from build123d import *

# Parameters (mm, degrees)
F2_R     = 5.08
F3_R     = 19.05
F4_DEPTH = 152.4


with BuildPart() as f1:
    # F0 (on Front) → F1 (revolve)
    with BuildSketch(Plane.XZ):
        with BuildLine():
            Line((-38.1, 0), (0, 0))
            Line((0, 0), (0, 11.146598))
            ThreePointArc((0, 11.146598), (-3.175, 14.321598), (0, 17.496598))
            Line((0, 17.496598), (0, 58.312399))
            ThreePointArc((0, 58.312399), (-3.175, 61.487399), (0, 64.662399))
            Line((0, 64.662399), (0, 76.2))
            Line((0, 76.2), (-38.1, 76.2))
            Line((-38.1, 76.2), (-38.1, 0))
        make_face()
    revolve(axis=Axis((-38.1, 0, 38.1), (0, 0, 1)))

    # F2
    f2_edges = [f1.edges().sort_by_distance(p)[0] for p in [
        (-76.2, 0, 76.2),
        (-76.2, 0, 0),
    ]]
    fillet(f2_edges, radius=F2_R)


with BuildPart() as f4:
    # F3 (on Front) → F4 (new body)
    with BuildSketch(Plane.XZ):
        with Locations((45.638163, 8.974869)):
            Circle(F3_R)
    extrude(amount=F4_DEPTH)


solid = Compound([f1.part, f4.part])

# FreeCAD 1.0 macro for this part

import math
import FreeCAD as App
import Part
import Sketcher
from FreeCAD import Vector
Q = App.Units.Quantity


def edges_at(feature, points):
    """Names of the edges that pass closest to the given points."""
    edges = feature.Shape.Edges
    near = lambda p: min(range(len(edges)), key=lambda i: edges[i].distToShape(Part.Vertex(*p))[0])
    return sorted({f"Edge{near(p) + 1}" for p in points})

doc = App.newDocument("Part")
body = doc.addObject("PartDesign::Body", "Body")

# Sketch on XZ plane
sketch1 = body.newObject("Sketcher::SketchObject", "Sketch")
sketch1.AttachmentSupport = (doc.getObject("XZ_Plane"), [""])
sketch1.MapMode = "FlatFace"
sketch1.addGeometry([
    Part.LineSegment(Vector(-38.1, 0, 0), Vector(0, 0, 0)),  # 0
    Part.LineSegment(Vector(0, 0, 0), Vector(0, 11.1, 0)),  # 1
    Part.ArcOfCircle(Part.Circle(Vector(0, 14.3, 0), Vector(0, 0, 1), 3.2), math.radians(90), math.radians(270)),  # 2
    Part.LineSegment(Vector(0, 17.5, 0), Vector(0, 58.3, 0)),  # 3
    Part.ArcOfCircle(Part.Circle(Vector(0, 61.5, 0), Vector(0, 0, 1), 3.2), math.radians(90), math.radians(270)),  # 4
    Part.LineSegment(Vector(0, 64.7, 0), Vector(0, 76.2, 0)),  # 5
    Part.LineSegment(Vector(0, 76.2, 0), Vector(-38.1, 76.2, 0)),  # 6
    Part.LineSegment(Vector(-38.1, 76.2, 0), Vector(-38.1, 0, 0)),  # 7
], False)
sketch1.addGeometry(Part.LineSegment(Vector(-38.1, 0, 0), Vector(-38.1, 76.2, 0)), True)  # axis
sketch1.addConstraint([
    Sketcher.Constraint("Coincident", 0, 2, 1, 1),
    Sketcher.Constraint("Coincident", 1, 2, 2, 2),
    Sketcher.Constraint("Coincident", 2, 1, 3, 1),
    Sketcher.Constraint("Coincident", 3, 2, 4, 2),
    Sketcher.Constraint("Coincident", 4, 1, 5, 1),
    Sketcher.Constraint("Coincident", 5, 2, 6, 1),
    Sketcher.Constraint("Coincident", 6, 2, 7, 1),
    Sketcher.Constraint("Coincident", 7, 2, 0, 1),
    Sketcher.Constraint("Horizontal", 0),
    Sketcher.Constraint("Vertical", 1),
    Sketcher.Constraint("Vertical", 3),
    Sketcher.Constraint("Vertical", 5),
    Sketcher.Constraint("Horizontal", 6),
    Sketcher.Constraint("Vertical", 7),
    Sketcher.Constraint("Vertical", 8),
    Sketcher.Constraint("Coincident", 0, 2, -1, 1),
    Sketcher.Constraint("Coincident", 8, 1, 7, 2),
    Sketcher.Constraint("Equal", 2, 4),
    Sketcher.Constraint("PointOnObject", 2, 3, -2),
    Sketcher.Constraint("PointOnObject", 4, 3, -2),
    Sketcher.Constraint("PointOnObject", 2, 1, -2),
    Sketcher.Constraint("PointOnObject", 4, 1, -2),
    Sketcher.Constraint("Horizontal", 5, 2, 8, 2),
    Sketcher.Constraint("DistanceY", 7, 2, 7, 1, Q("3 in")),
    Sketcher.Constraint("DistanceX", 0, 1, 0, 2, Q("1.5 in")),
    Sketcher.Constraint("Radius", 2, Q("0.125 in")),
    Sketcher.Constraint("DistanceY", 3, 1, 3, 2, Q("40.815801 mm")),
    Sketcher.Constraint("DistanceY", 5, 1, 5, 2, Q("11.537601 mm")),
])
revolution = body.newObject("PartDesign::Revolution", "Revolution")
revolution.Profile = sketch1
revolution.ReferenceAxis = (sketch1, ["Axis0"])
revolution.Angle = 360
doc.recompute()

fillet = body.newObject("PartDesign::Fillet", "Fillet")
fillet.Base = (revolution, edges_at(revolution, [(-76.2, 0, 76.2), (-76.2, 0, 0)]))
fillet.Radius = Q("0.2 in")
body2 = doc.addObject("PartDesign::Body", "Body001")

# Sketch on XZ plane
sketch2 = body2.newObject("Sketcher::SketchObject", "Sketch001")
sketch2.AttachmentSupport = (doc.getObject("XZ_Plane001"), [""])
sketch2.MapMode = "FlatFace"
sketch2.addGeometry(Part.Circle(Vector(46, 9, 0), Vector(0, 0, 1), 19), False)
sketch2.addConstraint([
    Sketcher.Constraint("Diameter", 0, Q("1.5 in")),
    Sketcher.Constraint("DistanceY", -1, 1, 0, 3, Q("8.974869 mm")),
    Sketcher.Constraint("DistanceX", -1, 1, 0, 3, Q("45.638163 mm")),
])
pad1 = body2.newObject("PartDesign::Pad", "Pad")
pad1.Profile = sketch2
pad1.Length = Q("6 in")

doc.recompute()
